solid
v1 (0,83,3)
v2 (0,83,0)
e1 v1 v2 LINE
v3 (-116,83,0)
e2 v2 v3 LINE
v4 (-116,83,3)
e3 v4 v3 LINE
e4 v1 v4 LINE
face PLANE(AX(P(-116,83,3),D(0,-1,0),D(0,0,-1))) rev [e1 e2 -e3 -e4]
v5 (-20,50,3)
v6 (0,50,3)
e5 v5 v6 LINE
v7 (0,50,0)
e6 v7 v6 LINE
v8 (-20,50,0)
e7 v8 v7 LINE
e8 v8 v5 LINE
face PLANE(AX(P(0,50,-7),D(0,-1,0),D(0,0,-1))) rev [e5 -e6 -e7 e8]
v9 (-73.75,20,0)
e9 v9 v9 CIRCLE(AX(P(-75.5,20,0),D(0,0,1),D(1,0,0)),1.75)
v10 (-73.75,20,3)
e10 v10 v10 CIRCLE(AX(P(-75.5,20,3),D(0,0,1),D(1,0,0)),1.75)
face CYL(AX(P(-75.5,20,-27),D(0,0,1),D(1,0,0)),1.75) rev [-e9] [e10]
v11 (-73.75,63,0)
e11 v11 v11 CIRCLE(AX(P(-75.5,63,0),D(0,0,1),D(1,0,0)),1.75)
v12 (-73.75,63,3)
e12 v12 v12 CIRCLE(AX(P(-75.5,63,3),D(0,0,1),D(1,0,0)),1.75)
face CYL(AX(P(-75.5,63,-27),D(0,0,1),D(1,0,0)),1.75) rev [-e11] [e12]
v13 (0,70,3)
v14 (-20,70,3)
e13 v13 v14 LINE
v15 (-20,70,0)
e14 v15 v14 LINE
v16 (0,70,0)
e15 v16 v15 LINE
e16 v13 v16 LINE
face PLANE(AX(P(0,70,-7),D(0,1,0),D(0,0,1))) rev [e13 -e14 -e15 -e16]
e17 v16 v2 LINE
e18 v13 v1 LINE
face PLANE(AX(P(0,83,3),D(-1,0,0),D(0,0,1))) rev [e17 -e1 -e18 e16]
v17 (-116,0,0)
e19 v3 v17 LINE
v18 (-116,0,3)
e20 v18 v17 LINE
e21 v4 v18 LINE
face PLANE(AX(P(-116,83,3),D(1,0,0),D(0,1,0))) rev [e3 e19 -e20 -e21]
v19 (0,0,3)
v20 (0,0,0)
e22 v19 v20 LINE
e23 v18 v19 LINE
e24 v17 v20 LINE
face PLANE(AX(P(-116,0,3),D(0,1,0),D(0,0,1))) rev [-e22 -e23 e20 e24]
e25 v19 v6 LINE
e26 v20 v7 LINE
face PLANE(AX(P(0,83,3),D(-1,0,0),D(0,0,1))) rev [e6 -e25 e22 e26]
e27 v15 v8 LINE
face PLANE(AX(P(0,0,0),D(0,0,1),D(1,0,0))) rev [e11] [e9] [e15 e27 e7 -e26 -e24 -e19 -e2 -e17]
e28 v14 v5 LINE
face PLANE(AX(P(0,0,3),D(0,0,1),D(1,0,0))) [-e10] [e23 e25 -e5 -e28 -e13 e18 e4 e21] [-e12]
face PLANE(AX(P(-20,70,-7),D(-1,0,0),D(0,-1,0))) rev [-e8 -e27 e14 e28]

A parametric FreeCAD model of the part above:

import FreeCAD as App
import Part
import Sketcher

V = App.Vector

doc = App.newDocument("Part")
params = doc.addObject("Spreadsheet::Sheet", "Params")
for row, (alias, value) in enumerate([
    ("sketch1_width", "116 mm"),
    ("sketch1_width2", "35 mm"),
    ("sketch1_width3", "70 mm"),
    ("sketch1_height", "83 mm"),
    ("sketch1_height2", "77 mm"),
    ("pad1_length", "3 mm"),
    ("sketch2_width", "70 mm"),
    ("sketch2_width2", "35 mm"),
    ("sketch2_height", "77 mm"),
    ("pad2_length", "3 mm"),
    ("sketch3_diameter", "3.5 mm"),
    ("pocket1_length", "30 mm"),
    ("sketch4_width", "20 mm"),
    ("pocket2_length", "10 mm"),
], start=1):
    params.set(f"A{row}", alias)
    params.set(f"B{row}", "=" + value)
    params.setAlias(f"B{row}", alias)

body = doc.addObject("PartDesign::Body", "Body")

# Sketch on XY plane
sketch1 = body.newObject("Sketcher::SketchObject", "Sketch")
sketch1.AttachmentSupport = (doc.getObject("XY_Plane"), [""])
sketch1.MapMode = "FlatFace"
sketch1.addGeometry([
    Part.LineSegment(V(-116, 83, 0), V(-116, 0, 0)),  # 0
    Part.LineSegment(V(-116, 0, 0), V(0, 0, 0)),  # 1
    Part.LineSegment(V(0, 0, 0), V(0, 83, 0)),  # 2
    Part.LineSegment(V(0, 83, 0), V(-116, 83, 0)),  # 3
    Part.LineSegment(V(-78, 3, 0), V(-113, 3, 0)),  # 4
    Part.LineSegment(V(-113, 3, 0), V(-113, 80, 0)),  # 5
    Part.LineSegment(V(-113, 80, 0), V(-78, 80, 0)),  # 6
    Part.LineSegment(V(-78, 80, 0), V(-78, 3, 0)),  # 7
    Part.LineSegment(V(-3, 3, 0), V(-73, 3, 0)),  # 8
    Part.LineSegment(V(-73, 3, 0), V(-73, 80, 0)),  # 9
    Part.LineSegment(V(-73, 80, 0), V(-3, 80, 0)),  # 10
    Part.LineSegment(V(-3, 80, 0), V(-3, 3, 0)),  # 11
], False)
sketch1.addConstraint([
    Sketcher.Constraint("Coincident", 0, 2, 1, 1),
    Sketcher.Constraint("Coincident", 1, 2, 2, 1),
    Sketcher.Constraint("Coincident", 2, 2, 3, 1),
    Sketcher.Constraint("Coincident", 3, 2, 0, 1),
    Sketcher.Constraint("Coincident", 4, 2, 5, 1),
    Sketcher.Constraint("Coincident", 5, 2, 6, 1),
    Sketcher.Constraint("Coincident", 6, 2, 7, 1),
    Sketcher.Constraint("Coincident", 7, 2, 4, 1),
    Sketcher.Constraint("Coincident", 8, 2, 9, 1),
    Sketcher.Constraint("Coincident", 9, 2, 10, 1),
    Sketcher.Constraint("Coincident", 10, 2, 11, 1),
    Sketcher.Constraint("Coincident", 11, 2, 8, 1),
    Sketcher.Constraint("Vertical", 0),
    Sketcher.Constraint("Horizontal", 1),
    Sketcher.Constraint("Vertical", 2),
    Sketcher.Constraint("Horizontal", 3),
    Sketcher.Constraint("Horizontal", 4),
    Sketcher.Constraint("Vertical", 5),
    Sketcher.Constraint("Horizontal", 6),
    Sketcher.Constraint("Vertical", 7),
    Sketcher.Constraint("Horizontal", 8),
    Sketcher.Constraint("Vertical", 9),
    Sketcher.Constraint("Horizontal", 10),
    Sketcher.Constraint("Vertical", 11),
    Sketcher.Constraint("Coincident", 1, 2, -1, 1),
    Sketcher.Constraint("Horizontal", 7, 2, 8, 2),
    Sketcher.Constraint("Horizontal", 6, 2, 9, 2),
    Sketcher.Constraint("DistanceX", 1, 1, 1, 2, 116.0),
    Sketcher.Constraint("DistanceX", 4, 2, 4, 1, 35.0),
    Sketcher.Constraint("DistanceX", 8, 2, 8, 1, 70.0),
    Sketcher.Constraint("DistanceY", 0, 2, 0, 1, 83.0),
    Sketcher.Constraint("DistanceY", 5, 1, 5, 2, 77.0),
    Sketcher.Constraint("DistanceX", 4, 2, -1, 1, 113.0),
    Sketcher.Constraint("DistanceY", -1, 1, 4, 2, 3.0),
    Sketcher.Constraint("DistanceX", 8, 2, -1, 1, 73.0),
])
sketch1.setExpression("Constraints[27]", "Params.sketch1_width")
sketch1.setExpression("Constraints[28]", "Params.sketch1_width2")
sketch1.setExpression("Constraints[29]", "Params.sketch1_width3")
sketch1.setExpression("Constraints[30]", "Params.sketch1_height")
sketch1.setExpression("Constraints[31]", "Params.sketch1_height2")
pad1 = body.newObject("PartDesign::Pad", "Pad")
pad1.Profile = sketch1
pad1.setExpression("Length", "Params.pad1_length")

# Sketch on XY plane
sketch2 = body.newObject("Sketcher::SketchObject", "Sketch001")
sketch2.AttachmentSupport = (doc.getObject("XY_Plane"), [""])
sketch2.MapMode = "FlatFace"
sketch2.addGeometry([
    Part.LineSegment(V(-3, 80, 0), V(-3, 3, 0)),  # 0
    Part.LineSegment(V(-3, 3, 0), V(-73, 3, 0)),  # 1
    Part.LineSegment(V(-73, 3, 0), V(-73, 80, 0)),  # 2
    Part.LineSegment(V(-73, 80, 0), V(-3, 80, 0)),  # 3
    Part.LineSegment(V(-78, 80, 0), V(-78, 3, 0)),  # 4
    Part.LineSegment(V(-78, 3, 0), V(-113, 3, 0)),  # 5
    Part.LineSegment(V(-113, 3, 0), V(-113, 80, 0)),  # 6
    Part.LineSegment(V(-113, 80, 0), V(-78, 80, 0)),  # 7
], False)
sketch2.addConstraint([
    Sketcher.Constraint("Coincident", 0, 2, 1, 1),
    Sketcher.Constraint("Coincident", 1, 2, 2, 1),
    Sketcher.Constraint("Coincident", 2, 2, 3, 1),
    Sketcher.Constraint("Coincident", 3, 2, 0, 1),
    Sketcher.Constraint("Coincident", 4, 2, 5, 1),
    Sketcher.Constraint("Coincident", 5, 2, 6, 1),
    Sketcher.Constraint("Coincident", 6, 2, 7, 1),
    Sketcher.Constraint("Coincident", 7, 2, 4, 1),
    Sketcher.Constraint("Vertical", 0),
    Sketcher.Constraint("Horizontal", 1),
    Sketcher.Constraint("Vertical", 2),
    Sketcher.Constraint("Horizontal", 3),
    Sketcher.Constraint("Vertical", 4),
    Sketcher.Constraint("Horizontal", 5),
    Sketcher.Constraint("Vertical", 6),
    Sketcher.Constraint("Horizontal", 7),
    Sketcher.Constraint("Horizontal", 1, 2, 4, 2),
    Sketcher.Constraint("Horizontal", 3, 2, 6, 2),
    Sketcher.Constraint("DistanceX", 1, 2, 1, 1, 70.0),
    Sketcher.Constraint("DistanceX", 5, 2, 5, 1, 35.0),
    Sketcher.Constraint("DistanceY", 0, 2, 0, 1, 77.0),
    Sketcher.Constraint("DistanceX", 0, 2, -1, 1, 3.0),
    Sketcher.Constraint("DistanceY", -1, 1, 0, 2, 3.0),
    Sketcher.Constraint("DistanceX", 4, 2, -1, 1, 78.0),
])
sketch2.setExpression("Constraints[18]", "Params.sketch2_width")
sketch2.setExpression("Constraints[19]", "Params.sketch2_width2")
sketch2.setExpression("Constraints[20]", "Params.sketch2_height")
pad2 = body.newObject("PartDesign::Pad", "Pad001")
pad2.Profile = sketch2
pad2.setExpression("Length", "Params.pad2_length")

# Sketch on XY plane
sketch3 = body.newObject("Sketcher::SketchObject", "Sketch002")
sketch3.AttachmentSupport = (doc.getObject("XY_Plane"), [""])
sketch3.MapMode = "FlatFace"
sketch3.AttachmentOffset = App.Placement(V(0, 0, 3), App.Rotation())
sketch3.addGeometry([
    Part.Circle(V(-75.5, 63, 0), V(0, 0, 1), 1.8),
    Part.Circle(V(-75.5, 20, 0), V(0, 0, 1), 1.8),
], False)
sketch3.addConstraint([
    Sketcher.Constraint("Equal", 0, 1),
    Sketcher.Constraint("Vertical", 0, 3, 1, 3),
    Sketcher.Constraint("Diameter", 0, 3.5),
    Sketcher.Constraint("DistanceY", -1, 1, 0, 3, 63.0),
    Sketcher.Constraint("DistanceY", -1, 1, 1, 3, 20.0),
    Sketcher.Constraint("DistanceX", 0, 3, -1, 1, 75.5),
])
sketch3.setExpression("Constraints[2]", "Params.sketch3_diameter")
pocket1 = body.newObject("PartDesign::Pocket", "Pocket")
pocket1.Profile = sketch3
pocket1.setExpression("Length", "Params.pocket1_length")

# Sketch on XY plane
sketch4 = body.newObject("Sketcher::SketchObject", "Sketch003")
sketch4.AttachmentSupport = (doc.getObject("XY_Plane"), [""])
sketch4.MapMode = "FlatFace"
sketch4.AttachmentOffset = App.Placement(V(0, 0, 3), App.Rotation())
sketch4.addGeometry([
    Part.LineSegment(V(-20, 70, 0), V(-20, 50, 0)),
    Part.LineSegment(V(-20, 50, 0), V(0, 50, 0)),
    Part.LineSegment(V(0, 50, 0), V(0, 70, 0)),
    Part.LineSegment(V(0, 70, 0), V(-20, 70, 0)),
], False)
sketch4.addConstraint([
    Sketcher.Constraint("Coincident", 0, 2, 1, 1),
    Sketcher.Constraint("Coincident", 1, 2, 2, 1),
    Sketcher.Constraint("Coincident", 2, 2, 3, 1),
    Sketcher.Constraint("Coincident", 3, 2, 0, 1),
    Sketcher.Constraint("Vertical", 0),
    Sketcher.Constraint("Horizontal", 1),
    Sketcher.Constraint("Vertical", 2),
    Sketcher.Constraint("Horizontal", 3),
    Sketcher.Constraint("PointOnObject", 1, 2, -2),
    Sketcher.Constraint("Equal", 3, 0),
    Sketcher.Constraint("DistanceX", 1, 1, 1, 2, 20.0),
    Sketcher.Constraint("DistanceY", -1, 1, 0, 2, 50.0),
])
sketch4.setExpression("Constraints[10]", "Params.sketch4_width")
pocket2 = body.newObject("PartDesign::Pocket", "Pocket001")
pocket2.Profile = sketch4
pocket2.setExpression("Length", "Params.pocket2_length")

doc.recompute()
